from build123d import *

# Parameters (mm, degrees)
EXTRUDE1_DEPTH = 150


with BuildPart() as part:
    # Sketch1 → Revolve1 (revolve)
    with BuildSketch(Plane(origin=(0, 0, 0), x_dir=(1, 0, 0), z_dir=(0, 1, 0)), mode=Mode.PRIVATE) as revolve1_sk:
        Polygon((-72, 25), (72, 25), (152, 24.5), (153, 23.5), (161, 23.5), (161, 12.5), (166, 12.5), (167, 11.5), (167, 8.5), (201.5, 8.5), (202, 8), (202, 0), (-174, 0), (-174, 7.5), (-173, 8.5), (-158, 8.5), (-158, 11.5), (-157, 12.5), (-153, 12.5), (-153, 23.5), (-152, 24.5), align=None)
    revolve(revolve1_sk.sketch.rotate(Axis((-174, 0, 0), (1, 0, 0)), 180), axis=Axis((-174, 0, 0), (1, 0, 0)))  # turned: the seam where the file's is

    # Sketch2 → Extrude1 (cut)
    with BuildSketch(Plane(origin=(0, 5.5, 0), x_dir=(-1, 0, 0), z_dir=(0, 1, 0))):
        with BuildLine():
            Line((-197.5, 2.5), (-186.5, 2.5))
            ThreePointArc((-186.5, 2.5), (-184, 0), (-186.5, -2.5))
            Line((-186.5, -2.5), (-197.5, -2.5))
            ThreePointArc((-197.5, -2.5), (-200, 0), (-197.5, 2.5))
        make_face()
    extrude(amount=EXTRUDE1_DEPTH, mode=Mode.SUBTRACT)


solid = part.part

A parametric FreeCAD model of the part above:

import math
import FreeCAD as App
import Part
import Sketcher
from FreeCAD import Vector
Q = App.Units.Quantity

doc = App.newDocument("Part")
body = doc.addObject("PartDesign::Body", "Body")

sketch1 = body.newObject("Sketcher::SketchObject", "Sketch")
sketch1.AttachmentSupport = (doc.getObject("XZ_Plane"), [""])
sketch1.MapMode = "FlatFace"
sketch1.addGeometry(Part.LineSegment(Vector(72, -25, 0), Vector(-72, -25, 0)), False)
sketch1.addGeometry(Part.LineSegment(Vector(-72, -25, 0), Vector(-152, -24.5, 0)), False)
sketch1.addGeometry(Part.LineSegment(Vector(-152, -24.5, 0), Vector(-153, -23.5, 0)), False)
sketch1.addGeometry(Part.LineSegment(Vector(-153, -23.5, 0), Vector(-153, -12.5, 0)), False)
sketch1.addGeometry(Part.LineSegment(Vector(-153, -12.5, 0), Vector(-157, -12.5, 0)), False)
sketch1.addGeometry(Part.LineSegment(Vector(-157, -12.5, 0), Vector(-158, -11.5, 0)), False)
sketch1.addGeometry(Part.LineSegment(Vector(-158, -11.5, 0), Vector(-158, -8.5, 0)), False)
sketch1.addGeometry(Part.LineSegment(Vector(-158, -8.5, 0), Vector(-173, -8.5, 0)), False)
sketch1.addGeometry(Part.LineSegment(Vector(-173, -8.5, 0), Vector(-174, -7.5, 0)), False)
sketch1.addGeometry(Part.LineSegment(Vector(-174, -7.5, 0), Vector(-174, 0, 0)), False)
sketch1.addGeometry(Part.LineSegment(Vector(-174, 0, 0), Vector(202, 0, 0)), False)
sketch1.addGeometry(Part.LineSegment(Vector(202, 0, 0), Vector(202, -8, 0)), False)
sketch1.addGeometry(Part.LineSegment(Vector(202, -8, 0), Vector(201.5, -8.5, 0)), False)
sketch1.addGeometry(Part.LineSegment(Vector(201.5, -8.5, 0), Vector(167, -8.5, 0)), False)
sketch1.addGeometry(Part.LineSegment(Vector(167, -8.5, 0), Vector(167, -11.5, 0)), False)
sketch1.addGeometry(Part.LineSegment(Vector(167, -11.5, 0), Vector(166, -12.5, 0)), False)
sketch1.addGeometry(Part.LineSegment(Vector(166, -12.5, 0), Vector(161, -12.5, 0)), False)
sketch1.addGeometry(Part.LineSegment(Vector(161, -12.5, 0), Vector(161, -23.5, 0)), False)
sketch1.addGeometry(Part.LineSegment(Vector(161, -23.5, 0), Vector(153, -23.5, 0)), False)
sketch1.addGeometry(Part.LineSegment(Vector(153, -23.5, 0), Vector(152, -24.5, 0)), False)
sketch1.addGeometry(Part.LineSegment(Vector(152, -24.5, 0), Vector(72, -25, 0)), False)
sketch1.addConstraint(Sketcher.Constraint("Coincident", 0, 2, 1, 1))
sketch1.addConstraint(Sketcher.Constraint("Coincident", 1, 2, 2, 1))
sketch1.addConstraint(Sketcher.Constraint("Coincident", 2, 2, 3, 1))
sketch1.addConstraint(Sketcher.Constraint("Coincident", 3, 2, 4, 1))
sketch1.addConstraint(Sketcher.Constraint("Coincident", 4, 2, 5, 1))
sketch1.addConstraint(Sketcher.Constraint("Coincident", 5, 2, 6, 1))
sketch1.addConstraint(Sketcher.Constraint("Coincident", 6, 2, 7, 1))
sketch1.addConstraint(Sketcher.Constraint("Coincident", 7, 2, 8, 1))
sketch1.addConstraint(Sketcher.Constraint("Coincident", 8, 2, 9, 1))
sketch1.addConstraint(Sketcher.Constraint("Coincident", 9, 2, 10, 1))
sketch1.addConstraint(Sketcher.Constraint("Coincident", 10, 2, 11, 1))
sketch1.addConstraint(Sketcher.Constraint("Coincident", 11, 2, 12, 1))
sketch1.addConstraint(Sketcher.Constraint("Coincident", 12, 2, 13, 1))
sketch1.addConstraint(Sketcher.Constraint("Coincident", 13, 2, 14, 1))
sketch1.addConstraint(Sketcher.Constraint("Coincident", 14, 2, 15, 1))
sketch1.addConstraint(Sketcher.Constraint("Coincident", 15, 2, 16, 1))
sketch1.addConstraint(Sketcher.Constraint("Coincident", 16, 2, 17, 1))
sketch1.addConstraint(Sketcher.Constraint("Coincident", 17, 2, 18, 1))
sketch1.addConstraint(Sketcher.Constraint("Coincident", 18, 2, 19, 1))
sketch1.addConstraint(Sketcher.Constraint("Coincident", 19, 2, 20, 1))
sketch1.addConstraint(Sketcher.Constraint("Coincident", 20, 2, 0, 1))
sketch1.addConstraint(Sketcher.Constraint("Horizontal", 0))
sketch1.addConstraint(Sketcher.Constraint("Vertical", 3))
sketch1.addConstraint(Sketcher.Constraint("Horizontal", 4))
sketch1.addConstraint(Sketcher.Constraint("Vertical", 6))
sketch1.addConstraint(Sketcher.Constraint("Horizontal", 7))
sketch1.addConstraint(Sketcher.Constraint("Vertical", 9))
sketch1.addConstraint(Sketcher.Constraint("Horizontal", 10))
sketch1.addConstraint(Sketcher.Constraint("Vertical", 11))
sketch1.addConstraint(Sketcher.Constraint("Horizontal", 13))
sketch1.addConstraint(Sketcher.Constraint("Vertical", 14))
sketch1.addConstraint(Sketcher.Constraint("Horizontal", 16))
sketch1.addConstraint(Sketcher.Constraint("Vertical", 17))
sketch1.addConstraint(Sketcher.Constraint("Horizontal", 18))
sketch1.addConstraint(Sketcher.Constraint("Symmetric", 2, 2, 18, 2, -2))
sketch1.addConstraint(Sketcher.Constraint("Symmetric", 1, 2, 19, 2, -2))
sketch1.addConstraint(Sketcher.Constraint("PointOnObject", 9, 2, -1))
sketch1.addConstraint(Sketcher.Constraint("Parallel", 2, 5))
sketch1.addConstraint(Sketcher.Constraint("Parallel", 5, 8))
sketch1.addConstraint(Sketcher.Constraint("Perpendicular", 8, 12))
sketch1.addConstraint(Sketcher.Constraint("Parallel", 12, 15))
sketch1.addConstraint(Sketcher.Constraint("Parallel", 15, 19))
sketch1.addConstraint(Sketcher.Constraint("Horizontal", 7, 2, 12, 2))
sketch1.addConstraint(Sketcher.Constraint("Horizontal", 5, 2, 14, 2))
sketch1.addConstraint(Sketcher.Constraint("Horizontal", 4, 2, 15, 2))
sketch1.addConstraint(Sketcher.Constraint("Equal", 18, 11))
sketch1.addConstraint(Sketcher.Constraint("Equal", 2, 5))
sketch1.addConstraint(Sketcher.Constraint("Equal", 5, 8))
sketch1.addConstraint(Sketcher.Constraint("Equal", 1, 20))
sketch1.addConstraint(Sketcher.Constraint("DistanceX", 0, 2, 0, 1, Q("144 mm")))
sketch1.addConstraint(Sketcher.Constraint("DistanceX", 4, 2, 4, 1, Q("4 mm")))
sketch1.addConstraint(Sketcher.Constraint("DistanceX", 7, 2, 7, 1, Q("15 mm")))
sketch1.addConstraint(Sketcher.Constraint("DistanceX", 10, 1, 10, 2, Q("376 mm")))
sketch1.addConstraint(Sketcher.Constraint("DistanceX", 16, 2, 16, 1, Q("5 mm")))
sketch1.addConstraint(Sketcher.Constraint("DistanceX", 18, 2, 18, 1, Q("8 mm")))
sketch1.addConstraint(Sketcher.Constraint("DistanceY", 3, 1, 3, 2, Q("11 mm")))
sketch1.addConstraint(Sketcher.Constraint("DistanceY", 6, 1, 6, 2, Q("3 mm")))
sketch1.addConstraint(Sketcher.Constraint("DistanceX", 13, 2, 13, 1, Q("34.5 mm")))
sketch1.addConstraint(Sketcher.Constraint("DistanceY", 9, 1, 9, 2, Q("7.5 mm")))
sketch1.addConstraint(Sketcher.Constraint("DistanceY", 0, 2, -1, 1, Q("25 mm")))
sketch1.addConstraint(Sketcher.Constraint("DistanceX", 1, 2, -1, 1, Q("152 mm")))
revolution = body.newObject("PartDesign::Revolution", "Revolution")
revolution.Profile = sketch1
revolution.ReferenceAxis = (sketch1, ["H_Axis"])
revolution.Angle = 360

sketch2 = body.newObject("Sketcher::SketchObject", "Sketch001")
sketch2.AttachmentSupport = (doc.getObject("XZ_Plane"), [""])
sketch2.MapMode = "FlatFace"
sketch2.AttachmentOffset = App.Placement(Vector(0, 0, -5.5), App.Rotation())
sketch2.addGeometry(Part.LineSegment(Vector(186.5, 2.5, 0), Vector(197.5, 2.5, 0)), False)
sketch2.addGeometry(Part.ArcOfCircle(Part.Circle(Vector(197.5, 0, 0), Vector(0, 0, 1), 2.5), math.radians(-90), math.radians(90)), False)
sketch2.addGeometry(Part.LineSegment(Vector(197.5, -2.5, 0), Vector(186.5, -2.5, 0)), False)
sketch2.addGeometry(Part.ArcOfCircle(Part.Circle(Vector(186.5, 0, 0), Vector(0, 0, 1), 2.5), math.radians(90), math.radians(270)), False)
sketch2.addConstraint(Sketcher.Constraint("Tangent", 0, 2, 1, 2))
sketch2.addConstraint(Sketcher.Constraint("Tangent", 1, 1, 2, 1))
sketch2.addConstraint(Sketcher.Constraint("Tangent", 2, 2, 3, 2))
sketch2.addConstraint(Sketcher.Constraint("Tangent", 3, 1, 0, 1))
sketch2.addConstraint(Sketcher.Constraint("Horizontal", 0))
sketch2.addConstraint(Sketcher.Constraint("Horizontal", 2))
sketch2.addConstraint(Sketcher.Constraint("PointOnObject", 1, 3, -1))
sketch2.addConstraint(Sketcher.Constraint("Radius", 1, Q("2.5 mm")))
sketch2.addConstraint(Sketcher.Constraint("DistanceX", 0, 1, 0, 2, Q("11 mm")))
sketch2.addConstraint(Sketcher.Constraint("DistanceX", -1, 1, 1, 3, Q("197.5 mm")))
pocket1 = body.newObject("PartDesign::Pocket", "Pocket")
pocket1.Profile = sketch2
pocket1.Length = 150

doc.recompute()
